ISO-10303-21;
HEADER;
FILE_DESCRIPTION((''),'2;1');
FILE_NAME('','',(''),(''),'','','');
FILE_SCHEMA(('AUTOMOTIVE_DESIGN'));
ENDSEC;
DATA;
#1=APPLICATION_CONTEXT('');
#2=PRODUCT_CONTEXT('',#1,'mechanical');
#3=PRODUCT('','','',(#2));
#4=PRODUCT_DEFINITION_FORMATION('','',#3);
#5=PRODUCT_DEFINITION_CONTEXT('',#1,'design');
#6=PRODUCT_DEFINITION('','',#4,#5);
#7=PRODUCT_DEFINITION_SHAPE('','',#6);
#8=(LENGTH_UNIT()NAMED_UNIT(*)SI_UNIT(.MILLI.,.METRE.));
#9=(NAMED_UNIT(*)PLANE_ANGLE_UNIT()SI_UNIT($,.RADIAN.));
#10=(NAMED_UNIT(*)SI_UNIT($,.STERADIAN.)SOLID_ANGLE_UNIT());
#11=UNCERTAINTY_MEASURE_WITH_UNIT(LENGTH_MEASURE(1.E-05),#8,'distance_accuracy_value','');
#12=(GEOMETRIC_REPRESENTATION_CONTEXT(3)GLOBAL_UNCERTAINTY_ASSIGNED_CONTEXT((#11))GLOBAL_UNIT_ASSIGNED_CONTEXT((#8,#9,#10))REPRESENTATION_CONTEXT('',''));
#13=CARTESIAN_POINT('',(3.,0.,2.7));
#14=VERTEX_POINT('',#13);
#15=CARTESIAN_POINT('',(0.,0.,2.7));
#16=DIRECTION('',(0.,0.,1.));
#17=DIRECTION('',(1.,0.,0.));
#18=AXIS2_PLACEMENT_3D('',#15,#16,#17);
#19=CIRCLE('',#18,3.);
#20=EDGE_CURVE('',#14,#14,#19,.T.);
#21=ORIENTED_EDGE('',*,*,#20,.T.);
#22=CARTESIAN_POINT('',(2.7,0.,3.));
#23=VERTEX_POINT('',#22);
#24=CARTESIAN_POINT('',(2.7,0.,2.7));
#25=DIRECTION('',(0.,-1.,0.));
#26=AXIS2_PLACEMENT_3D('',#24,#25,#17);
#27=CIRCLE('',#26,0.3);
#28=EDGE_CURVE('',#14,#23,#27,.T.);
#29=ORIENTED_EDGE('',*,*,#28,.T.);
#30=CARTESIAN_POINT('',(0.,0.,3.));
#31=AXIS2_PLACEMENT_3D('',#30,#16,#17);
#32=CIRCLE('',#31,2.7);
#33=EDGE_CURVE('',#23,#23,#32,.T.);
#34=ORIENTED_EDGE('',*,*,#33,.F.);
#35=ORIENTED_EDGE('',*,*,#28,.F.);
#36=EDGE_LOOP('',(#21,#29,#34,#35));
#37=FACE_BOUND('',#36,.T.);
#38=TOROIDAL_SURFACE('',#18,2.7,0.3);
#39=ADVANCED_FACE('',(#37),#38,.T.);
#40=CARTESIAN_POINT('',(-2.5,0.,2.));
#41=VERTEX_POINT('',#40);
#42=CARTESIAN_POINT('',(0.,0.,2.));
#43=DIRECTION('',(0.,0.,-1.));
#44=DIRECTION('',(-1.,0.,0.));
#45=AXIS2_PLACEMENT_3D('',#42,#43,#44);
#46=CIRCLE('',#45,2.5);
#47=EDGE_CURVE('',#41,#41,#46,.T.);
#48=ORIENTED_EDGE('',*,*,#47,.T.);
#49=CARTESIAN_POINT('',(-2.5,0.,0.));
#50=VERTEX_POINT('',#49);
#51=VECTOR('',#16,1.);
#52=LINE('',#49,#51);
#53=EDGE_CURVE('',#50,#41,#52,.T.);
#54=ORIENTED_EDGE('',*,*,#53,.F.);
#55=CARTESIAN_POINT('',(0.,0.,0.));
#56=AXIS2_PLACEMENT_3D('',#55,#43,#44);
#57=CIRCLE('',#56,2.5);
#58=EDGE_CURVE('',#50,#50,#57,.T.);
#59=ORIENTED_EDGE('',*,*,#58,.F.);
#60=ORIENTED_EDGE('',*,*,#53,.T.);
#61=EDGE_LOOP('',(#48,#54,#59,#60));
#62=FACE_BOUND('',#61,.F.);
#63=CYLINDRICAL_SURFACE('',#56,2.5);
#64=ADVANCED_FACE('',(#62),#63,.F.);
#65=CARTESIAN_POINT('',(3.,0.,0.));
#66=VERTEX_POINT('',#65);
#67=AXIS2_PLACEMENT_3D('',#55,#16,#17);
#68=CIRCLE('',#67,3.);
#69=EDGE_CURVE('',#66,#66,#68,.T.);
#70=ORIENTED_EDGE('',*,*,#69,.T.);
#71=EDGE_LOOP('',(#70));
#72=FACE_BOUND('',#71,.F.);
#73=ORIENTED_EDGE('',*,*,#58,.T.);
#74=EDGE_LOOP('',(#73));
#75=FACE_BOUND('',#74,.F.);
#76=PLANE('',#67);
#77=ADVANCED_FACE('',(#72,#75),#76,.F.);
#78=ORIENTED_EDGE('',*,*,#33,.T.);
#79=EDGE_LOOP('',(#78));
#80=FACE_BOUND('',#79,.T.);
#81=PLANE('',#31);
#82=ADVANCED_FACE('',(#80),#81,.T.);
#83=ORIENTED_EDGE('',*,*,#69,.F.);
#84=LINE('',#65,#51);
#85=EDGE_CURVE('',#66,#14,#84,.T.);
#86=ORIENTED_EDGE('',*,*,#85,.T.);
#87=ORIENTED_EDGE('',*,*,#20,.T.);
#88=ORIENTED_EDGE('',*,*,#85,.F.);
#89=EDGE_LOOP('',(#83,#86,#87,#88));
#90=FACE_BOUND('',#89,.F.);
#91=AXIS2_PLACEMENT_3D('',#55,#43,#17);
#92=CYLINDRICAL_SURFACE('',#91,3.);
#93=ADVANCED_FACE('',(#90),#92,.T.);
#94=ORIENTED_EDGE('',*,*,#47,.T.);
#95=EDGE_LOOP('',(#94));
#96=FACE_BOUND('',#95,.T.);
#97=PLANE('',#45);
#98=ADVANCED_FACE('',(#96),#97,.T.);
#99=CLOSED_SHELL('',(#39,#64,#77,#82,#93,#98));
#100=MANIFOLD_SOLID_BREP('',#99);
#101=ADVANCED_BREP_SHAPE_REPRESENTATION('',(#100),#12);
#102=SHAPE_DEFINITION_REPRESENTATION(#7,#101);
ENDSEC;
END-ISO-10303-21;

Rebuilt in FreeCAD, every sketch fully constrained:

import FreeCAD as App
import Part
import Sketcher
Q = App.Units.Quantity


def edges_at(feature, points):
    """Names of the edges that pass closest to the given points."""
    edges = feature.Shape.Edges
    near = lambda p: min(range(len(edges)), key=lambda i: edges[i].distToShape(Part.Vertex(*p))[0])
    return sorted({f"Edge{near(p) + 1}" for p in points})

doc = App.newDocument("Part")
body = doc.addObject("PartDesign::Body", "Body")

# Sketch on XY plane
sketch1 = doc.addObject("Sketcher::SketchObject", "Sketch")
body.addObject(sketch1)
sketch1.AttachmentSupport = (doc.XY_Plane, [""])
sketch1.MapMode = "FlatFace"
sketch1.addGeometry(Part.Circle(App.Vector(0, 0, 0), App.Vector(0, 0, 1), 3), False)
sketch1.addConstraint(Sketcher.Constraint("Coincident", 0, 3, -1, 1))
sketch1.addConstraint(Sketcher.Constraint("Diameter", 0, Q("6 mm")))
pad1 = doc.addObject("PartDesign::Pad", "Pad")
body.addObject(pad1)
pad1.Profile = sketch1
pad1.Length = 3
doc.recompute()

fillet = doc.addObject("PartDesign::Fillet", "Fillet")
body.addObject(fillet)
fillet.Base = (pad1, edges_at(pad1, [(-3, 0, 3)]))
fillet.Radius = 0.3

# Sketch on XY plane
sketch2 = doc.addObject("Sketcher::SketchObject", "Sketch001")
body.addObject(sketch2)
sketch2.AttachmentSupport = (doc.XY_Plane, [""])
sketch2.MapMode = "FlatFace"
sketch2.addGeometry(Part.Circle(App.Vector(0, 0, 0), App.Vector(0, 0, 1), 2.5), False)
sketch2.addConstraint(Sketcher.Constraint("Coincident", 0, 3, -1, 1))
sketch2.addConstraint(Sketcher.Constraint("Diameter", 0, Q("5 mm")))
pocket1 = doc.addObject("PartDesign::Pocket", "Pocket")
body.addObject(pocket1)
pocket1.Profile = sketch2
pocket1.Length = 2
pocket1.Reversed = True

doc.recompute()
